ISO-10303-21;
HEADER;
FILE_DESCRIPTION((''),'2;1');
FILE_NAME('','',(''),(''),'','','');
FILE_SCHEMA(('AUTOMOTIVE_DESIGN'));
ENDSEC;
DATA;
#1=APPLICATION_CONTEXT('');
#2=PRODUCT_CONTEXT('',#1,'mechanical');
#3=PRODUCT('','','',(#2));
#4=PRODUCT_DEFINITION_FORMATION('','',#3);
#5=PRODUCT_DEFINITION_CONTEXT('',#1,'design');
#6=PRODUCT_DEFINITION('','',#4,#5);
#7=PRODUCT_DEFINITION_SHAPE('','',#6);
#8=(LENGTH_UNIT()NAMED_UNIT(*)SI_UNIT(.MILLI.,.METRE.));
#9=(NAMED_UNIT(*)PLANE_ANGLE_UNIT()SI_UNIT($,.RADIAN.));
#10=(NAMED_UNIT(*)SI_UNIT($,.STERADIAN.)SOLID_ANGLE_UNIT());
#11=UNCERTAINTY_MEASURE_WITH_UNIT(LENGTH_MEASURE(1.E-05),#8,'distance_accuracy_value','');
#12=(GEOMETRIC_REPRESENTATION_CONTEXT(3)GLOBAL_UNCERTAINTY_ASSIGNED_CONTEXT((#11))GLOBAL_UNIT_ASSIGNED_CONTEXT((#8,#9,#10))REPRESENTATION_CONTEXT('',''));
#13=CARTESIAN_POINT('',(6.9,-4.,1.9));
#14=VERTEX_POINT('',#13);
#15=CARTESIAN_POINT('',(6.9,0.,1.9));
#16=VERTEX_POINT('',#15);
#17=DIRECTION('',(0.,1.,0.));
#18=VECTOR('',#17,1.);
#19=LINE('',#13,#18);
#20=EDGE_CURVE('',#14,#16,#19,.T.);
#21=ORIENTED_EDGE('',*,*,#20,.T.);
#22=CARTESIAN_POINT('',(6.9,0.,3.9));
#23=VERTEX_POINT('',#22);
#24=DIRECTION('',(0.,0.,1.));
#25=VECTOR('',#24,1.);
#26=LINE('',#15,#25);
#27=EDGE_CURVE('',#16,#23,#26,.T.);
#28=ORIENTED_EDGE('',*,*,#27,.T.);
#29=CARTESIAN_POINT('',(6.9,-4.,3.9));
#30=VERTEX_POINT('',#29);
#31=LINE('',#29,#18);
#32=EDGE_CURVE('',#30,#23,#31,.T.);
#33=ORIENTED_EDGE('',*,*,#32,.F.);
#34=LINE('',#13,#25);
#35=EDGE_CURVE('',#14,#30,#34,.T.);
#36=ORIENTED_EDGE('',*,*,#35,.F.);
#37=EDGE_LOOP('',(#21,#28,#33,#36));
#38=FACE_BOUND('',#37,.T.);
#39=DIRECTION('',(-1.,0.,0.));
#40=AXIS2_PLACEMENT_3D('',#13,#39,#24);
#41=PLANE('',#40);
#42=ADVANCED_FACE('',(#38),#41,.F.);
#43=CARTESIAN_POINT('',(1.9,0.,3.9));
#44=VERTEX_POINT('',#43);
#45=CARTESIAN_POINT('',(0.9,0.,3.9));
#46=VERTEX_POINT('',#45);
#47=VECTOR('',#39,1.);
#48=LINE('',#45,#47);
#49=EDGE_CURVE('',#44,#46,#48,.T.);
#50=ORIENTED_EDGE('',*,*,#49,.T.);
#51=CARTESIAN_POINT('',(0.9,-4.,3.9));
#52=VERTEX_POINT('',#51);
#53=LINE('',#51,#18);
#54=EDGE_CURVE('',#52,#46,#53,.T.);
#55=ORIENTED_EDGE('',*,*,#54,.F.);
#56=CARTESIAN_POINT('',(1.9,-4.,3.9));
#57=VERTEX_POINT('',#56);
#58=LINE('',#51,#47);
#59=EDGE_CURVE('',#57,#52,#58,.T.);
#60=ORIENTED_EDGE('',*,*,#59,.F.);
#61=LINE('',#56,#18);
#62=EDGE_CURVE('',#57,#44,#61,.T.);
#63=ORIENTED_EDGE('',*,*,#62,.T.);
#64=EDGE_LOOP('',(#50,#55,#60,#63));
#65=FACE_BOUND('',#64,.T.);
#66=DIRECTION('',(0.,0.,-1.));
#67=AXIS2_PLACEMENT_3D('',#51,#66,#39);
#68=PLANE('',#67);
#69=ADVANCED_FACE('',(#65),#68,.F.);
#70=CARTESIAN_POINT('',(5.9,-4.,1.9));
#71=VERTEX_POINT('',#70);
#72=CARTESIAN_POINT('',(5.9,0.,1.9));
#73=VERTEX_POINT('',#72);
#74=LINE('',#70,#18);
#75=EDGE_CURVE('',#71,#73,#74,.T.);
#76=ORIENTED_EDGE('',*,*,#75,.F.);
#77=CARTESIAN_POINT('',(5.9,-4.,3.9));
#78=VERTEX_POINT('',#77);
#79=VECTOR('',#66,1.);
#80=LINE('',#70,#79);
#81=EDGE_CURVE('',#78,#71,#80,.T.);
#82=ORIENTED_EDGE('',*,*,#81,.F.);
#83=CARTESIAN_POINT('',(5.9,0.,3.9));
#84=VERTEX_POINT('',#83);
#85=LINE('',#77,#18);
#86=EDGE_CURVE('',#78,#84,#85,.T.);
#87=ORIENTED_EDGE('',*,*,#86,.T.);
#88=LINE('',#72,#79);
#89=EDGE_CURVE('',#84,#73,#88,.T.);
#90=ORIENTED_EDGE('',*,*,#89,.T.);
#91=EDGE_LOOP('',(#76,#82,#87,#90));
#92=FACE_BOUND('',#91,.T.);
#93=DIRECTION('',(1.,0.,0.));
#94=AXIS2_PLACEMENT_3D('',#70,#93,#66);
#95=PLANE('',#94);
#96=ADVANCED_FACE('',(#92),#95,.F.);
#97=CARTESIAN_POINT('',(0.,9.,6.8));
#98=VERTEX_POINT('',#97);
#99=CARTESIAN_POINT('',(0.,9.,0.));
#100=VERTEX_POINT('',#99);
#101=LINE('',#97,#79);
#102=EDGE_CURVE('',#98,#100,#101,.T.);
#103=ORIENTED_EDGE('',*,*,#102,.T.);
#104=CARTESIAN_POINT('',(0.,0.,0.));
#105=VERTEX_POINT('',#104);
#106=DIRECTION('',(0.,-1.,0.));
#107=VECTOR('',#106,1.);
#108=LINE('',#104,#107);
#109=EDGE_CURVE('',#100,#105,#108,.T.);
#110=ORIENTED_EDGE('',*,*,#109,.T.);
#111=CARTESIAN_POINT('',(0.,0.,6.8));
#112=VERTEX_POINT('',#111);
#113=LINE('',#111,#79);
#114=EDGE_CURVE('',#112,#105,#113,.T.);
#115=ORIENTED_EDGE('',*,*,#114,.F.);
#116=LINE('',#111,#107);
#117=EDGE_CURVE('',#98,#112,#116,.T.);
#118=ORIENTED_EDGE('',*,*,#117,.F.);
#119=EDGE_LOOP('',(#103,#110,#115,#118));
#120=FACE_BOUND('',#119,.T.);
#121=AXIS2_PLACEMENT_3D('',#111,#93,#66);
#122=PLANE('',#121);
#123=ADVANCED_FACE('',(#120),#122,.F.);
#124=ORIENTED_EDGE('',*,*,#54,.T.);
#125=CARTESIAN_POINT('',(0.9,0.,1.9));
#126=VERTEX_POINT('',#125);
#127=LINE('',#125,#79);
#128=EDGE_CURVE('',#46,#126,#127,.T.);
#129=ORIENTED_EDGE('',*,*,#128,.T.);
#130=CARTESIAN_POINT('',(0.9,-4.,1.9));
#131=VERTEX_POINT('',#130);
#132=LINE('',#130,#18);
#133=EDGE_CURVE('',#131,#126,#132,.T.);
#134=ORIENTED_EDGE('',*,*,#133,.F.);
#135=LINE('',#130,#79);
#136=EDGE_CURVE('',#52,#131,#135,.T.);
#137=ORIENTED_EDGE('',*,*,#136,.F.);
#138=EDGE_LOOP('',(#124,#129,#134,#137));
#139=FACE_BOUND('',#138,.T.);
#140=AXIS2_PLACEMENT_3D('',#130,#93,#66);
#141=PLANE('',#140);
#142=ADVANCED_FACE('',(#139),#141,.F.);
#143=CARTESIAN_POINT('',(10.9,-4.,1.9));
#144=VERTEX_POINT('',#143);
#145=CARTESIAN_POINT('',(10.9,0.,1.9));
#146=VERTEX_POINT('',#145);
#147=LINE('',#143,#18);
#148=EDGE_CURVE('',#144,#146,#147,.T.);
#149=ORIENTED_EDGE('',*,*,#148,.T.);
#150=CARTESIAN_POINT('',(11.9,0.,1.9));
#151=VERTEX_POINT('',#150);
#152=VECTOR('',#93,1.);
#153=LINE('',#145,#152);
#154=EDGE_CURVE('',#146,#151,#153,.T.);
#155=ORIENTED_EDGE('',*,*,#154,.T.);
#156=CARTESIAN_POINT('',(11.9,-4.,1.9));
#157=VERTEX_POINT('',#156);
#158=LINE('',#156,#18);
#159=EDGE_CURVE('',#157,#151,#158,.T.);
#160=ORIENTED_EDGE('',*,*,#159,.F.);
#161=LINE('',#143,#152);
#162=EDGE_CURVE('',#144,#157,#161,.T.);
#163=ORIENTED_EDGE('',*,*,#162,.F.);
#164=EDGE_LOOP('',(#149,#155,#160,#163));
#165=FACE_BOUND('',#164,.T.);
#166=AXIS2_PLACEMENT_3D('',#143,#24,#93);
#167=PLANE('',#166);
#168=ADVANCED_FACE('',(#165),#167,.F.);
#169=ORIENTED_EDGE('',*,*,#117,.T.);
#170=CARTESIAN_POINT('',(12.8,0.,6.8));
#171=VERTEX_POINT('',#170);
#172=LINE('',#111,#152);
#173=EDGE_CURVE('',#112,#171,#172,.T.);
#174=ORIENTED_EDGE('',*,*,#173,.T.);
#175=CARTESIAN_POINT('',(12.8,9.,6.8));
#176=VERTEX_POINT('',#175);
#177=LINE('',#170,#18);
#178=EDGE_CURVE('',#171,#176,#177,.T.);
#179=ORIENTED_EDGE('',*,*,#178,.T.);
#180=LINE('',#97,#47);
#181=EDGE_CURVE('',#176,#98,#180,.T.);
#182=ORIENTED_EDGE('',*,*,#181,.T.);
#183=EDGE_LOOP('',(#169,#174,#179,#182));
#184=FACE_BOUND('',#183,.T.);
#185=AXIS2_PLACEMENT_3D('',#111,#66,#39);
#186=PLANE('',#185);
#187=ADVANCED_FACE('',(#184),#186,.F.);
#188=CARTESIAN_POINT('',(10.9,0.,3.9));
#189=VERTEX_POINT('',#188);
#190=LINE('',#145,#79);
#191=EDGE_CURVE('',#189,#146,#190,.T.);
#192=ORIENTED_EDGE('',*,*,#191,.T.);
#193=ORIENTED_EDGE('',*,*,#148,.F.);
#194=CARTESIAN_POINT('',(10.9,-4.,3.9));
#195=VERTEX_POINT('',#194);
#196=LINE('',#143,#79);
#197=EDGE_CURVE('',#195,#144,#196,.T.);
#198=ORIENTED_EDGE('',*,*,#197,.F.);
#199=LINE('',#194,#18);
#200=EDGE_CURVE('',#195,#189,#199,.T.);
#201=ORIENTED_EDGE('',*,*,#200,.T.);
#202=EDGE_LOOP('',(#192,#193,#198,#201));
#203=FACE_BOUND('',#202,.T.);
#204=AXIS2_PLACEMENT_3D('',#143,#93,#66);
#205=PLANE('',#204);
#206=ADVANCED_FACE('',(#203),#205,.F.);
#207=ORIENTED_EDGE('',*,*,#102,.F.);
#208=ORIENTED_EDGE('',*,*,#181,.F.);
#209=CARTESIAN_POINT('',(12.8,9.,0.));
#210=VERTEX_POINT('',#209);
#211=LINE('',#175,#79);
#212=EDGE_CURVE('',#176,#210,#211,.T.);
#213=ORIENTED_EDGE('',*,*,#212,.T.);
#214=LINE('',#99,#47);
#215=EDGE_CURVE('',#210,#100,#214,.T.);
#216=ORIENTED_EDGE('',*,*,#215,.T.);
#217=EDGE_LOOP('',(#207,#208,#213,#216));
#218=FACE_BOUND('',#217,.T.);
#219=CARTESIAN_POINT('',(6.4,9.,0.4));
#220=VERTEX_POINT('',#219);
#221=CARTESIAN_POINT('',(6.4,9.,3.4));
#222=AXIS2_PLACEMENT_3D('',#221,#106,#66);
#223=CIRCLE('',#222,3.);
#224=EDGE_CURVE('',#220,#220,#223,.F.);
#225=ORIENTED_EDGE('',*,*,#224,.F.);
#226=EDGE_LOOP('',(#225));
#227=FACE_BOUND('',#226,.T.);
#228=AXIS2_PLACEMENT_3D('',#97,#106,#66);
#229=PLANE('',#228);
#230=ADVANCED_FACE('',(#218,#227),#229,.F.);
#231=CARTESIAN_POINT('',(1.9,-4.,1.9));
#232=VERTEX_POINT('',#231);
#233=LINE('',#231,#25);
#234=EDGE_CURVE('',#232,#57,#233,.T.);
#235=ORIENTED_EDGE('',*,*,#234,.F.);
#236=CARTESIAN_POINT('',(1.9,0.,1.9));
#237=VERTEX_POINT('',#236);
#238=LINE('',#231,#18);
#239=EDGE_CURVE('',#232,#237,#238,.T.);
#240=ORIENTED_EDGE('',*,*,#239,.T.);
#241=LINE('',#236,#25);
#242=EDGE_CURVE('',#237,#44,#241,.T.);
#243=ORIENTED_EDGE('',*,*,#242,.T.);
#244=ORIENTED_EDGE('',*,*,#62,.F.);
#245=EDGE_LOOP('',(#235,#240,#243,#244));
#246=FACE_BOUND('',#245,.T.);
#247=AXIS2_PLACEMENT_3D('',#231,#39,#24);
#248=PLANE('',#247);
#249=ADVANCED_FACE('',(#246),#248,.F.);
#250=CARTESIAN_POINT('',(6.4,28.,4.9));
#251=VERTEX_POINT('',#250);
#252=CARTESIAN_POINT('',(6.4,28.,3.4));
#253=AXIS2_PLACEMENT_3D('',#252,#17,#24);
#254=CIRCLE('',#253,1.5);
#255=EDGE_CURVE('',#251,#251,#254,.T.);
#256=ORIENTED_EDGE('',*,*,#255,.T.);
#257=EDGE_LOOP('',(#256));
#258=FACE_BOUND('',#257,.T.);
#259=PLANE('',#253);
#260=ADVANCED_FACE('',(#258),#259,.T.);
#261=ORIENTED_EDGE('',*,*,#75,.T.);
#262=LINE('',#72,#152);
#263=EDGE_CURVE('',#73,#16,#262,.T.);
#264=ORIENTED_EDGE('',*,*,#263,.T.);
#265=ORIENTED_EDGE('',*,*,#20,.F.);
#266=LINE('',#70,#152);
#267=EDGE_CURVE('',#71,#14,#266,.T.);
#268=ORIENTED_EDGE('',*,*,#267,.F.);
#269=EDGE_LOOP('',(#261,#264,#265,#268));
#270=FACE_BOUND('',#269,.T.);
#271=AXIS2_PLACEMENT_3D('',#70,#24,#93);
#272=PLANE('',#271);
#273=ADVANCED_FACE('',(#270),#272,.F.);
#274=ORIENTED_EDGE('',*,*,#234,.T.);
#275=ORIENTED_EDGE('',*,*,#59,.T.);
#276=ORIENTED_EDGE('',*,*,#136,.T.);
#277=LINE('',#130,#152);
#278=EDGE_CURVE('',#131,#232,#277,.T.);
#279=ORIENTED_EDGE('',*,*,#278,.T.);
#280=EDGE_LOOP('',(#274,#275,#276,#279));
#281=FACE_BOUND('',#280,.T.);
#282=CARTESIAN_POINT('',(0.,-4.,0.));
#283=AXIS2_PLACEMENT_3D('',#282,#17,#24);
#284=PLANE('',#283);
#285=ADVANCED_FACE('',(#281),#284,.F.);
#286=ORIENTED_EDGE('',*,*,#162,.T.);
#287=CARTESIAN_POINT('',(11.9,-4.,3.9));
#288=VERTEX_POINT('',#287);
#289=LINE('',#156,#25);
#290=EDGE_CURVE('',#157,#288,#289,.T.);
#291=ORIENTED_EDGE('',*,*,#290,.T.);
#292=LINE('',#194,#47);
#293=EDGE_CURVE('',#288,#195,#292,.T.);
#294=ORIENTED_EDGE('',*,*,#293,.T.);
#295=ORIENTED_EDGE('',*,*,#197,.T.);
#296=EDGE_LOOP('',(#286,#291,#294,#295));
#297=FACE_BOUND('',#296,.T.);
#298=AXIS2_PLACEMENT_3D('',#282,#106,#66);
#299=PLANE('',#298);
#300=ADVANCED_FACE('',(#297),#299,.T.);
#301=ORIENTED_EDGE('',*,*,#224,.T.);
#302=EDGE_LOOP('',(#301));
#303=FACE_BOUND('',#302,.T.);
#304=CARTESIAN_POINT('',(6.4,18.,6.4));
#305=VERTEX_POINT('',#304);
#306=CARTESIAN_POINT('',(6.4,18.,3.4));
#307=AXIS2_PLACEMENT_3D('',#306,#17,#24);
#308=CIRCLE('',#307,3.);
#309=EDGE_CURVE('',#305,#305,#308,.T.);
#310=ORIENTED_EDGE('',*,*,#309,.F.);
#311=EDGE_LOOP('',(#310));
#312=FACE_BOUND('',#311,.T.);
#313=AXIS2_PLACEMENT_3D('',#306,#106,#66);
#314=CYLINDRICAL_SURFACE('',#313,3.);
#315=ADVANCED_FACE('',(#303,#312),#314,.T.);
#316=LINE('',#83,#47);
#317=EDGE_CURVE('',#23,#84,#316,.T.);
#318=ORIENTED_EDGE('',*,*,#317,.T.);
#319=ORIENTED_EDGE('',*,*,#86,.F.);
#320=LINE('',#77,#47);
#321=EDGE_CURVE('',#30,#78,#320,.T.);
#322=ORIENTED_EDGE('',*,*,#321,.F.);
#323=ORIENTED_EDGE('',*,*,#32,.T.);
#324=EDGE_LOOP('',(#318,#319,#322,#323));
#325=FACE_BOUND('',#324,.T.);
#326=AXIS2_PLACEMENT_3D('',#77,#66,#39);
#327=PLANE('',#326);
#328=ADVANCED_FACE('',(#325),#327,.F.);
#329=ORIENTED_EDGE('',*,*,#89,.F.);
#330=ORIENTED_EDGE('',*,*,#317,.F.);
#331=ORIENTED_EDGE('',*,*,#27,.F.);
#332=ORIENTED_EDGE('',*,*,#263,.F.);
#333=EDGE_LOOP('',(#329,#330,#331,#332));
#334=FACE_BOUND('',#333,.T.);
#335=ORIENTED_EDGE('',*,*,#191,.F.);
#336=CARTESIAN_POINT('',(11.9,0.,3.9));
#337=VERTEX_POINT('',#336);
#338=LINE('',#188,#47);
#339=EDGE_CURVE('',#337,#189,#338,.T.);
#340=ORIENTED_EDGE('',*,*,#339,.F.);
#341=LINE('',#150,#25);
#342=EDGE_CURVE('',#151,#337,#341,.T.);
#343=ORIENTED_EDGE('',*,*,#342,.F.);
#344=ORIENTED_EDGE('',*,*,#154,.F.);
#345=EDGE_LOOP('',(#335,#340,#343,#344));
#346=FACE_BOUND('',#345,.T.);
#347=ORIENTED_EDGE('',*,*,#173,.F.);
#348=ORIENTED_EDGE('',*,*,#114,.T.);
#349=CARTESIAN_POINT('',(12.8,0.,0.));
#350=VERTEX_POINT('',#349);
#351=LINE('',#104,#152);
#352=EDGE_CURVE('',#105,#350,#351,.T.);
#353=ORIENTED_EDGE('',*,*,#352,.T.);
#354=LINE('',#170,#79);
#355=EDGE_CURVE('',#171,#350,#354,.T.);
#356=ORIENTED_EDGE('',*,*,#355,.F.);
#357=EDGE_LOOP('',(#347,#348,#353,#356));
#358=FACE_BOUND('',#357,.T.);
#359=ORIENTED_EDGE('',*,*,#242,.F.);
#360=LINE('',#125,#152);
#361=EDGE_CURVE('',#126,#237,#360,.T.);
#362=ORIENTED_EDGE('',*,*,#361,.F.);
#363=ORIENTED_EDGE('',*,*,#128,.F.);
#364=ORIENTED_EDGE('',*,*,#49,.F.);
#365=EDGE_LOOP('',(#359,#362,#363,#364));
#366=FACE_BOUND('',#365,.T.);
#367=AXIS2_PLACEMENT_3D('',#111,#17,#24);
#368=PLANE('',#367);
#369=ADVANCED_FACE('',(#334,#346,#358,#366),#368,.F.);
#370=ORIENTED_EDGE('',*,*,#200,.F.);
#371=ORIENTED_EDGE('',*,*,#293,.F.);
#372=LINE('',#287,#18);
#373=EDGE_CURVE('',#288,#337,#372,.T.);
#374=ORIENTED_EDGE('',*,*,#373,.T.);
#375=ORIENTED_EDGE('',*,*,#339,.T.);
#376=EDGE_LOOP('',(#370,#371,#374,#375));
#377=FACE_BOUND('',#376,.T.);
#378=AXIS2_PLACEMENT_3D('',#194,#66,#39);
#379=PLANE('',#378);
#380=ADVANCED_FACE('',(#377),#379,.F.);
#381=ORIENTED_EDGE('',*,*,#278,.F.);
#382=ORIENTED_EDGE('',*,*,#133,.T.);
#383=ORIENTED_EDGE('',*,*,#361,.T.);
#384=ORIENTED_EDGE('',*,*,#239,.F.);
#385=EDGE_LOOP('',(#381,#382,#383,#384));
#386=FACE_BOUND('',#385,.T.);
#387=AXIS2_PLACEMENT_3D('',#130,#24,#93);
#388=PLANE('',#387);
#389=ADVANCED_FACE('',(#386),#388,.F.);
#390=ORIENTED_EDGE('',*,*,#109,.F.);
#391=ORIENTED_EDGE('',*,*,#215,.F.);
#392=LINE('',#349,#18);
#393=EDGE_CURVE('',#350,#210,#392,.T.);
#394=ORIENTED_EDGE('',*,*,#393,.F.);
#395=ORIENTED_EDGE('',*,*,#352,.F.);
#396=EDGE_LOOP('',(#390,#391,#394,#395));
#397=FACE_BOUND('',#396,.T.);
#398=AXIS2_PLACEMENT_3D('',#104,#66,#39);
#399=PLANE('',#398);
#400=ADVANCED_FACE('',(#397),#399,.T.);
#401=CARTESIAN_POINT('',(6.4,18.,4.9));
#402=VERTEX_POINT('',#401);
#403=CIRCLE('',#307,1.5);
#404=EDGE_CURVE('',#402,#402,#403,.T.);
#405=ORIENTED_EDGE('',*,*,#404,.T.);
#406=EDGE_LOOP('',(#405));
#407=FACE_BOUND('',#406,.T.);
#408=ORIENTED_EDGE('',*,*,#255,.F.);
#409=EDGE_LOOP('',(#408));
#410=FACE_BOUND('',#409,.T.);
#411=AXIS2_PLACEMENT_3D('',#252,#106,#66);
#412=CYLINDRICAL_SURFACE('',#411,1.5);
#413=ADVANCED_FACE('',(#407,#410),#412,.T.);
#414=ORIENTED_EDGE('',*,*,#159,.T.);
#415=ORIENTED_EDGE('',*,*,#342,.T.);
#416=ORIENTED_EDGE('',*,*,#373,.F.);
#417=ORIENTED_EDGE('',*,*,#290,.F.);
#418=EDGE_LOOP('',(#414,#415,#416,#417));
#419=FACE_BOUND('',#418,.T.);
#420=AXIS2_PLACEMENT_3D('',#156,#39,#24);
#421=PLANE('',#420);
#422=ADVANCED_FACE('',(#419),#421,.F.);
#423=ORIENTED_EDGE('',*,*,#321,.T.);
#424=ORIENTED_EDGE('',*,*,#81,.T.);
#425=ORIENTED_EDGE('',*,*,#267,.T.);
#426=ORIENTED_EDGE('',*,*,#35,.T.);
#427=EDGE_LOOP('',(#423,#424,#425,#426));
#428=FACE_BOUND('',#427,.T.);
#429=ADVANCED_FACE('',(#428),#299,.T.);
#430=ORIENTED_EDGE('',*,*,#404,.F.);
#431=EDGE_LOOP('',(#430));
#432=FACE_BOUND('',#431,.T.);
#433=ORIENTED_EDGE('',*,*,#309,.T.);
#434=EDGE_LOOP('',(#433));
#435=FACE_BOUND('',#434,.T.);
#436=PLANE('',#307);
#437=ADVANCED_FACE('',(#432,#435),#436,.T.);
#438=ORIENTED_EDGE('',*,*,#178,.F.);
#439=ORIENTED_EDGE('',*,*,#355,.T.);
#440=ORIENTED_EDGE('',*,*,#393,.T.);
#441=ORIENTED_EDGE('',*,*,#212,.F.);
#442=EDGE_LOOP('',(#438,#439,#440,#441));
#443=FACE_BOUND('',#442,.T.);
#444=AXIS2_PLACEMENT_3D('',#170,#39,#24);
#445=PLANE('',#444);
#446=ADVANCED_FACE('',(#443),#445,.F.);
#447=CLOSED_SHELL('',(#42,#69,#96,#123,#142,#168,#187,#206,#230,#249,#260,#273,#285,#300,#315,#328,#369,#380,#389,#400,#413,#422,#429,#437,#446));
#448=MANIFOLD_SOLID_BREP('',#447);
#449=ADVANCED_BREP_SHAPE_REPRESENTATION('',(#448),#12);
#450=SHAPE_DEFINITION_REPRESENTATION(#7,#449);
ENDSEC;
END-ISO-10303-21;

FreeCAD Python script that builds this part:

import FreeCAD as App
import Part
import Sketcher
Q = App.Units.Quantity


def add_polygon(sketch, points):
    """Adds a closed chain of lines whose ends are joined by coincident constraints."""
    first, n = sketch.GeometryCount, len(points)
    for a, b in zip(points, points[1:] + points[:1]):
        sketch.addGeometry(Part.LineSegment(App.Vector(*a, 0), App.Vector(*b, 0)), False)
    for i in range(n):
        sketch.addConstraint(Sketcher.Constraint("Coincident", first + i, 2, first + (i + 1) % n, 1))

doc = App.newDocument("Part")
params = doc.addObject("Spreadsheet::Sheet", "Params")
for row, (alias, value) in enumerate([
    ("sketch1_height", "9 mm"),
    ("sketch1_width", "12.8 mm"),
    ("pad1_length", "6.8 mm"),
    ("sketch2_width", "1 mm"),
    ("sketch2_height", "2 mm"),
    ("pad2_length", "4 mm"),
    ("sketch3_diameter", "6 mm"),
    ("pad3_length", "9 mm"),
    ("sketch4_diameter", "3 mm"),
    ("pad4_length", "10 mm"),
], start=1):
    params.set(f"A{row}", alias)
    params.set(f"B{row}", "=" + value)
    params.setAlias(f"B{row}", alias)

body = doc.addObject("PartDesign::Body", "Body")

sketch1 = body.newObject("Sketcher::SketchObject", "Sketch")
sketch1.AttachmentSupport = (doc.getObject("XY_Plane"), [""])
sketch1.MapMode = "FlatFace"
add_polygon(sketch1, [(0, 9), (0, 0), (12.8, 0), (12.8, 9)])
sketch1.addConstraint([
    Sketcher.Constraint("Vertical", 0),
    Sketcher.Constraint("Horizontal", 1),
    Sketcher.Constraint("Vertical", 2),
    Sketcher.Constraint("Horizontal", 3),
    Sketcher.Constraint("Coincident", 0, 2, -1, 1),
    Sketcher.Constraint("DistanceY", 0, 2, 0, 1, Q("9 mm")),
    Sketcher.Constraint("DistanceX", 1, 1, 1, 2, Q("12.8 mm")),
])
sketch1.setExpression("Constraints[9]", "Params.sketch1_height")
sketch1.setExpression("Constraints[10]", "Params.sketch1_width")
pad1 = body.newObject("PartDesign::Pad", "Pad")
pad1.Profile = sketch1
pad1.setExpression("Length", "Params.pad1_length")

sketch2 = body.newObject("Sketcher::SketchObject", "Sketch001")
sketch2.AttachmentSupport = (doc.getObject("XZ_Plane"), [""])
sketch2.MapMode = "FlatFace"
add_polygon(sketch2, [(0.9, 3.9), (0.9, 1.9), (1.9, 1.9), (1.9, 3.9)])
add_polygon(sketch2, [(5.9, 3.9), (5.9, 1.9), (6.9, 1.9), (6.9, 3.9)])
add_polygon(sketch2, [(10.9, 3.9), (10.9, 1.9), (11.9, 1.9), (11.9, 3.9)])
sketch2.addConstraint([
    Sketcher.Constraint("Vertical", 0),
    Sketcher.Constraint("Horizontal", 1),
    Sketcher.Constraint("Vertical", 2),
    Sketcher.Constraint("Horizontal", 3),
    Sketcher.Constraint("Vertical", 4),
    Sketcher.Constraint("Horizontal", 5),
    Sketcher.Constraint("Vertical", 6),
    Sketcher.Constraint("Horizontal", 7),
    Sketcher.Constraint("Vertical", 8),
    Sketcher.Constraint("Horizontal", 9),
    Sketcher.Constraint("Vertical", 10),
    Sketcher.Constraint("Horizontal", 11),
    Sketcher.Constraint("Horizontal", 1, 2, 4, 2),
    Sketcher.Constraint("Horizontal", 3, 2, 6, 2),
    Sketcher.Constraint("Horizontal", 5, 2, 8, 2),
    Sketcher.Constraint("Horizontal", 7, 2, 10, 2),
    Sketcher.Constraint("Equal", 3, 5),
    Sketcher.Constraint("Equal", 7, 9),
    Sketcher.Constraint("DistanceX", 1, 1, 1, 2, Q("1 mm")),
    Sketcher.Constraint("DistanceY", 0, 2, 0, 1, Q("2 mm")),
    Sketcher.Constraint("DistanceX", 1, 2, 4, 2, Q("4 mm")),
    Sketcher.Constraint("DistanceX", 5, 2, 8, 2, Q("4 mm")),
    Sketcher.Constraint("DistanceX", -1, 1, 0, 2, Q("0.9 mm")),
    Sketcher.Constraint("DistanceY", -1, 1, 0, 2, Q("1.9 mm")),
])
sketch2.setExpression("Constraints[30]", "Params.sketch2_width")
sketch2.setExpression("Constraints[31]", "Params.sketch2_height")
pad2 = body.newObject("PartDesign::Pad", "Pad001")
pad2.Profile = sketch2
pad2.setExpression("Length", "Params.pad2_length")

sketch3 = body.newObject("Sketcher::SketchObject", "Sketch002")
sketch3.AttachmentSupport = (doc.getObject("XZ_Plane"), [""])
sketch3.MapMode = "FlatFace"
sketch3.AttachmentOffset = App.Placement(App.Vector(0, 0, -9), App.Rotation())
sketch3.addGeometry(Part.Circle(App.Vector(6.4, 3.4, 0), App.Vector(0, 0, 1), 3), False)
sketch3.addConstraint([
    Sketcher.Constraint("Diameter", 0, Q("6 mm")),
    Sketcher.Constraint("DistanceX", -1, 1, 0, 3, Q("6.4 mm")),
    Sketcher.Constraint("DistanceY", -1, 1, 0, 3, Q("3.4 mm")),
])
sketch3.setExpression("Constraints[0]", "Params.sketch3_diameter")
pad3 = body.newObject("PartDesign::Pad", "Pad002")
pad3.Profile = sketch3
pad3.setExpression("Length", "Params.pad3_length")
pad3.Reversed = True

sketch4 = body.newObject("Sketcher::SketchObject", "Sketch003")
sketch4.AttachmentSupport = (doc.getObject("XZ_Plane"), [""])
sketch4.MapMode = "FlatFace"
sketch4.AttachmentOffset = App.Placement(App.Vector(0, 0, -18), App.Rotation())
sketch4.addGeometry(Part.Circle(App.Vector(6.4, 3.4, 0), App.Vector(0, 0, 1), 1.5), False)
sketch4.addConstraint([
    Sketcher.Constraint("Diameter", 0, Q("3 mm")),
    Sketcher.Constraint("DistanceX", -1, 1, 0, 3, Q("6.4 mm")),
    Sketcher.Constraint("DistanceY", -1, 1, 0, 3, Q("3.4 mm")),
])
sketch4.setExpression("Constraints[0]", "Params.sketch4_diameter")
pad4 = body.newObject("PartDesign::Pad", "Pad003")
pad4.Profile = sketch4
pad4.setExpression("Length", "Params.pad4_length")
pad4.Reversed = True

doc.recompute()
